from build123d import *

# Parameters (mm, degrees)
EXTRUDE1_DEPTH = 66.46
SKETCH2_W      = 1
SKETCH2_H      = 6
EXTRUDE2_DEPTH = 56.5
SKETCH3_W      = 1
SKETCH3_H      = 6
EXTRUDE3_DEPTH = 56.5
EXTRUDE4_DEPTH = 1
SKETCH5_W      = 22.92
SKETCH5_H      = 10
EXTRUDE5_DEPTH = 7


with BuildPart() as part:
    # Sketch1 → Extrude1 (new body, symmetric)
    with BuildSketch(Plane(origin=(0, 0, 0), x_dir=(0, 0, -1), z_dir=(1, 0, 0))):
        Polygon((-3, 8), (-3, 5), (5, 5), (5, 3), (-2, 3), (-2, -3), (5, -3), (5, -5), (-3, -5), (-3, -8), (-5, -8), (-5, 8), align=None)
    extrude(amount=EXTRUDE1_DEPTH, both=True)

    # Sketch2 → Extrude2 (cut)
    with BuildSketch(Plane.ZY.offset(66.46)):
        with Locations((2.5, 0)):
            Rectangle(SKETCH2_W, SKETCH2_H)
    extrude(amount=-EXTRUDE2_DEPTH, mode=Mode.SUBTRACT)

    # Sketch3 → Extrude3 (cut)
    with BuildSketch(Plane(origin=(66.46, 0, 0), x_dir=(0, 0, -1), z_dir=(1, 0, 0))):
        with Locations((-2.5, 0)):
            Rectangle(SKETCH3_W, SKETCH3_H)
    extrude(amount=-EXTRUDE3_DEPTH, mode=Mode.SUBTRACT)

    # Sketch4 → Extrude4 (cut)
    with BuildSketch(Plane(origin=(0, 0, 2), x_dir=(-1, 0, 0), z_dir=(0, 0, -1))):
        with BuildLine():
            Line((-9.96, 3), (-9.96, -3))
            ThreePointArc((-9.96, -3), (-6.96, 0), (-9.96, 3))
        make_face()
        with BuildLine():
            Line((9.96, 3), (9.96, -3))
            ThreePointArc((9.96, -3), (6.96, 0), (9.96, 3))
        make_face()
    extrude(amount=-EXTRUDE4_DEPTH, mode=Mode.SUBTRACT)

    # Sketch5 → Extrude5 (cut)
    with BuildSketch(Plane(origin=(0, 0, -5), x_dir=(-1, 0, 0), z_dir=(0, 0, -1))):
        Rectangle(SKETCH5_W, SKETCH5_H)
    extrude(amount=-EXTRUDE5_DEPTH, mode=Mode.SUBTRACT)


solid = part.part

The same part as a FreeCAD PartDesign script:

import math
import FreeCAD as App
import Part
import Sketcher

V = App.Vector
Q = App.Units.Quantity


def add_polygon(sketch, points):
    """Adds a closed chain of lines whose ends are joined by coincident constraints."""
    first, n = sketch.GeometryCount, len(points)
    for a, b in zip(points, points[1:] + points[:1]):
        sketch.addGeometry(Part.LineSegment(App.Vector(*a, 0), App.Vector(*b, 0)), False)
    for i in range(n):
        sketch.addConstraint(Sketcher.Constraint("Coincident", first + i, 2, first + (i + 1) % n, 1))

doc = App.newDocument("Part")
body = doc.addObject("PartDesign::Body", "Body")

# Sketch on YZ plane
sketch1 = body.newObject("Sketcher::SketchObject", "Sketch")
sketch1.AttachmentSupport = (doc.getObject("YZ_Plane"), [""])
sketch1.MapMode = "FlatFace"
add_polygon(sketch1, [(5, 3), (8, 3), (8, 5), (-8, 5), (-8, 3), (-5, 3), (-5, -5), (-3, -5), (-3, 2), (3, 2), (3, -5), (5, -5)])  # lines 0-11
sketch1.addConstraint(Sketcher.Constraint("Horizontal", 0))
sketch1.addConstraint(Sketcher.Constraint("Vertical", 1))
sketch1.addConstraint(Sketcher.Constraint("Horizontal", 2))
sketch1.addConstraint(Sketcher.Constraint("Vertical", 3))
sketch1.addConstraint(Sketcher.Constraint("Horizontal", 4))
sketch1.addConstraint(Sketcher.Constraint("Vertical", 5))
sketch1.addConstraint(Sketcher.Constraint("Horizontal", 6))
sketch1.addConstraint(Sketcher.Constraint("Vertical", 7))
sketch1.addConstraint(Sketcher.Constraint("Horizontal", 8))
sketch1.addConstraint(Sketcher.Constraint("Vertical", 9))
sketch1.addConstraint(Sketcher.Constraint("Horizontal", 10))
sketch1.addConstraint(Sketcher.Constraint("Vertical", 11))
sketch1.addConstraint(Sketcher.Constraint("Symmetric", 0, 2, 3, 2, -2))
sketch1.addConstraint(Sketcher.Constraint("Symmetric", 6, 2, 9, 2, -2))
sketch1.addConstraint(Sketcher.Constraint("Equal", 0, 4))
sketch1.addConstraint(Sketcher.Constraint("Equal", 10, 1))
sketch1.addConstraint(Sketcher.Constraint("DistanceX", 0, 1, 0, 2, Q("3 mm")))
sketch1.addConstraint(Sketcher.Constraint("DistanceX", 2, 2, 2, 1, Q("16 mm")))
sketch1.addConstraint(Sketcher.Constraint("DistanceX", 6, 1, 6, 2, Q("2 mm")))
sketch1.addConstraint(Sketcher.Constraint("DistanceY", 5, 2, 5, 1, Q("8 mm")))
sketch1.addConstraint(Sketcher.Constraint("DistanceY", 7, 1, 7, 2, Q("7 mm")))
sketch1.addConstraint(Sketcher.Constraint("DistanceY", -1, 1, 0, 2, Q("3 mm")))
pad1 = body.newObject("PartDesign::Pad", "Pad")
pad1.Profile = sketch1
pad1.Length = 132.92
pad1.Midplane = True

# Sketch on YZ plane
sketch2 = body.newObject("Sketcher::SketchObject", "Sketch001")
sketch2.AttachmentSupport = (doc.getObject("YZ_Plane"), [""])
sketch2.MapMode = "FlatFace"
sketch2.AttachmentOffset = App.Placement(V(0, 0, -66.46), App.Rotation())
add_polygon(sketch2, [(3, 2), (-3, 2), (-3, 3), (3, 3)])  # lines 0-3
sketch2.addConstraint(Sketcher.Constraint("Horizontal", 0))
sketch2.addConstraint(Sketcher.Constraint("Vertical", 1))
sketch2.addConstraint(Sketcher.Constraint("Horizontal", 2))
sketch2.addConstraint(Sketcher.Constraint("Vertical", 3))
sketch2.addConstraint(Sketcher.Constraint("DistanceX", 0, 2, 0, 1, Q("6 mm")))
sketch2.addConstraint(Sketcher.Constraint("DistanceY", 1, 1, 1, 2, Q("1 mm")))
sketch2.addConstraint(Sketcher.Constraint("DistanceX", 0, 2, -1, 1, Q("3 mm")))
sketch2.addConstraint(Sketcher.Constraint("DistanceY", -1, 1, 0, 2, Q("2 mm")))
pocket1 = body.newObject("PartDesign::Pocket", "Pocket")
pocket1.Profile = sketch2
pocket1.Length = 56.5
pocket1.Reversed = True

# Sketch on YZ plane
sketch3 = body.newObject("Sketcher::SketchObject", "Sketch002")
sketch3.AttachmentSupport = (doc.getObject("YZ_Plane"), [""])
sketch3.MapMode = "FlatFace"
sketch3.AttachmentOffset = App.Placement(V(0, 0, 66.46), App.Rotation())
add_polygon(sketch3, [(3, 3), (-3, 3), (-3, 2), (3, 2)])  # lines 0-3
sketch3.addConstraint(Sketcher.Constraint("Horizontal", 0))
sketch3.addConstraint(Sketcher.Constraint("Vertical", 1))
sketch3.addConstraint(Sketcher.Constraint("Horizontal", 2))
sketch3.addConstraint(Sketcher.Constraint("Vertical", 3))
sketch3.addConstraint(Sketcher.Constraint("DistanceX", 0, 2, 0, 1, Q("6 mm")))
sketch3.addConstraint(Sketcher.Constraint("DistanceY", 1, 2, 1, 1, Q("1 mm")))
sketch3.addConstraint(Sketcher.Constraint("DistanceX", 0, 2, -1, 1, Q("3 mm")))
sketch3.addConstraint(Sketcher.Constraint("DistanceY", -1, 1, 0, 2, Q("3 mm")))
pocket2 = body.newObject("PartDesign::Pocket", "Pocket001")
pocket2.Profile = sketch3
pocket2.Length = 56.5

# Sketch on XY plane
sketch4 = body.newObject("Sketcher::SketchObject", "Sketch003")
sketch4.AttachmentSupport = (doc.getObject("XY_Plane"), [""])
sketch4.MapMode = "FlatFace"
sketch4.AttachmentOffset = App.Placement(V(0, 0, 2), App.Rotation())
sketch4.addGeometry(Part.LineSegment(V(9.96, 3, 0), V(9.96, -3, 0)), False)
sketch4.addGeometry(Part.ArcOfCircle(Part.Circle(V(9.96, 0, 0), V(0, 0, 1), 3), math.radians(90), math.radians(270)), False)
sketch4.addGeometry(Part.LineSegment(V(-9.96, -3, 0), V(-9.96, 3, 0)), False)
sketch4.addGeometry(Part.ArcOfCircle(Part.Circle(V(-9.96, 0, 0), V(0, 0, 1), 3), math.radians(-90), math.radians(90)), False)
sketch4.addConstraint(Sketcher.Constraint("Coincident", 0, 1, 1, 1))
sketch4.addConstraint(Sketcher.Constraint("Coincident", 1, 2, 0, 2))
sketch4.addConstraint(Sketcher.Constraint("Coincident", 2, 1, 3, 1))
sketch4.addConstraint(Sketcher.Constraint("Coincident", 3, 2, 2, 2))
sketch4.addConstraint(Sketcher.Constraint("Vertical", 0))
sketch4.addConstraint(Sketcher.Constraint("Vertical", 2))
sketch4.addConstraint(Sketcher.Constraint("Equal", 1, 3))
sketch4.addConstraint(Sketcher.Constraint("Symmetric", 1, 3, 3, 3, -1, 1))
sketch4.addConstraint(Sketcher.Constraint("Symmetric", 1, 2, 2, 1, -2))
sketch4.addConstraint(Sketcher.Constraint("Vertical", 1, 3, 0, 1))
sketch4.addConstraint(Sketcher.Constraint("Radius", 1, Q("3 mm")))
sketch4.addConstraint(Sketcher.Constraint("DistanceX", -1, 1, 1, 3, Q("9.96 mm")))
pocket3 = body.newObject("PartDesign::Pocket", "Pocket002")
pocket3.Profile = sketch4
pocket3.Length = 1
pocket3.Reversed = True

# Sketch on XY plane
sketch5 = body.newObject("Sketcher::SketchObject", "Sketch004")
sketch5.AttachmentSupport = (doc.getObject("XY_Plane"), [""])
sketch5.MapMode = "FlatFace"
sketch5.AttachmentOffset = App.Placement(V(0, 0, -5), App.Rotation())
add_polygon(sketch5, [(11.46, 5), (11.46, -5), (-11.46, -5), (-11.46, 5)])  # lines 0-3
sketch5.addConstraint(Sketcher.Constraint("Vertical", 0))
sketch5.addConstraint(Sketcher.Constraint("Horizontal", 1))
sketch5.addConstraint(Sketcher.Constraint("Vertical", 2))
sketch5.addConstraint(Sketcher.Constraint("Horizontal", 3))
sketch5.addConstraint(Sketcher.Constraint("Symmetric", 0, 2, 2, 2, -1, 1))
sketch5.addConstraint(Sketcher.Constraint("DistanceY", 0, 2, 0, 1, Q("10 mm")))
sketch5.addConstraint(Sketcher.Constraint("DistanceX", 1, 2, 1, 1, Q("22.92 mm")))
pocket4 = body.newObject("PartDesign::Pocket", "Pocket003")
pocket4.Profile = sketch5
pocket4.Length = 7
pocket4.Reversed = True

doc.recompute()
